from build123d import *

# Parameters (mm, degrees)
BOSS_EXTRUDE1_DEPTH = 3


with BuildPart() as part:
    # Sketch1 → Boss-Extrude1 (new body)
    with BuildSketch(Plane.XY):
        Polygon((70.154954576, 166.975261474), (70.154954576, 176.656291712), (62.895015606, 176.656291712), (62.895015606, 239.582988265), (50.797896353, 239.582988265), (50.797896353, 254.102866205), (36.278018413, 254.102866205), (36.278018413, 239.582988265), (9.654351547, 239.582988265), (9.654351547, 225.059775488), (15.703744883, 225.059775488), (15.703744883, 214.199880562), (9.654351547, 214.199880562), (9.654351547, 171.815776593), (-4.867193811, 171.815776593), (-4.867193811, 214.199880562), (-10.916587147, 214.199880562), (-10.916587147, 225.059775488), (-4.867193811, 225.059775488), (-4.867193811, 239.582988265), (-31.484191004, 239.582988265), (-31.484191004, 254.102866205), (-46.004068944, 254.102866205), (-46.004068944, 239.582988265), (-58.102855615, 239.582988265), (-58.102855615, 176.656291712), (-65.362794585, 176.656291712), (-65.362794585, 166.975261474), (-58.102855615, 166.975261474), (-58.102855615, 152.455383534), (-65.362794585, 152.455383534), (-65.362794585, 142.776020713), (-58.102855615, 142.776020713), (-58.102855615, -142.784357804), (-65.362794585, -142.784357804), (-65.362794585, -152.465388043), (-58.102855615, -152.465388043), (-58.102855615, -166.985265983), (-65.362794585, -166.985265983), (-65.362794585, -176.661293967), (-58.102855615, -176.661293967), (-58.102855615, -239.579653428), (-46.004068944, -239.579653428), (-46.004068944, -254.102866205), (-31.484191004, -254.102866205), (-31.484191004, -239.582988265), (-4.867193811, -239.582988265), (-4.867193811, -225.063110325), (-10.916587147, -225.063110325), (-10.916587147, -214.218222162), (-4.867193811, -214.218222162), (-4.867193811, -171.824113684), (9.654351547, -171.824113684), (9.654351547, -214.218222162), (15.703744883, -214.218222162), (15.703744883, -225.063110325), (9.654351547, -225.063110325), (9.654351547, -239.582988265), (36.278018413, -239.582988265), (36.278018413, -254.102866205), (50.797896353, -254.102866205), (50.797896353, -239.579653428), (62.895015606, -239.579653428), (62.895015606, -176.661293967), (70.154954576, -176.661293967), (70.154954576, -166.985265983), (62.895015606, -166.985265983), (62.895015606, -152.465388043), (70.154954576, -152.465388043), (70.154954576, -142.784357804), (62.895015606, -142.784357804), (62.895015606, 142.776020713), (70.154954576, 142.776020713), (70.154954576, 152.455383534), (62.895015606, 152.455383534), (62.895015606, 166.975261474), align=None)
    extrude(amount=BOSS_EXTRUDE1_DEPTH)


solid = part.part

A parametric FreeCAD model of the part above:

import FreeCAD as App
import Part
import Sketcher
Q = App.Units.Quantity


def add_polygon(sketch, points):
    """Adds a closed chain of lines whose ends are joined by coincident constraints."""
    first, n = sketch.GeometryCount, len(points)
    for a, b in zip(points, points[1:] + points[:1]):
        sketch.addGeometry(Part.LineSegment(App.Vector(*a, 0), App.Vector(*b, 0)), False)
    for i in range(n):
        sketch.addConstraint(Sketcher.Constraint("Coincident", first + i, 2, first + (i + 1) % n, 1))

doc = App.newDocument("Part")
body = doc.addObject("PartDesign::Body", "Body")

# Sketch on XY plane
sketch1 = body.newObject("Sketcher::SketchObject", "Sketch")
sketch1.AttachmentSupport = (doc.getObject("XY_Plane"), [""])
sketch1.MapMode = "FlatFace"
add_polygon(sketch1, [(70.154955, 166.975261), (70.154955, 176.656292), (62.895016, 176.656292), (62.895016, 239.582988), (50.797896, 239.582988), (50.797896, 254.102866), (36.278018, 254.102866), (36.278018, 239.582988), (9.654352, 239.582988), (9.654352, 225.059775), (15.703745, 225.059775), (15.703745, 214.199881), (9.654352, 214.199881), (9.654352, 171.815777), (-4.867194, 171.815777), (-4.867194, 214.199881), (-10.916587, 214.199881), (-10.916587, 225.059775), (-4.867194, 225.059775), (-4.867194, 239.582988), (-31.484191, 239.582988), (-31.484191, 254.102866), (-46.004069, 254.102866), (-46.004069, 239.582988), (-58.102856, 239.582988), (-58.102856, 176.656292), (-65.362795, 176.656292), (-65.362795, 166.975261), (-58.102856, 166.975261), (-58.102856, 152.455384), (-65.362795, 152.455384), (-65.362795, 142.776021), (-58.102856, 142.776021), (-58.102856, -142.784358), (-65.362795, -142.784358), (-65.362795, -152.465388), (-58.102856, -152.465388), (-58.102856, -166.985266), (-65.362795, -166.985266), (-65.362795, -176.661294), (-58.102856, -176.661294), (-58.102856, -239.579653), (-46.004069, -239.579653), (-46.004069, -254.102866), (-31.484191, -254.102866), (-31.484191, -239.582988), (-4.867194, -239.582988), (-4.867194, -225.06311), (-10.916587, -225.06311), (-10.916587, -214.218222), (-4.867194, -214.218222), (-4.867194, -171.824114), (9.654352, -171.824114), (9.654352, -214.218222), (15.703745, -214.218222), (15.703745, -225.06311), (9.654352, -225.06311), (9.654352, -239.582988), (36.278018, -239.582988), (36.278018, -254.102866), (50.797896, -254.102866), (50.797896, -239.579653), (62.895016, -239.579653), (62.895016, -176.661294), (70.154955, -176.661294), (70.154955, -166.985266), (62.895016, -166.985266), (62.895016, -152.465388), (70.154955, -152.465388), (70.154955, -142.784358), (62.895016, -142.784358), (62.895016, 142.776021), (70.154955, 142.776021), (70.154955, 152.455384), (62.895016, 152.455384), (62.895016, 166.975261)])  # lines 0-75
sketch1.addConstraint([
    Sketcher.Constraint("Vertical", 0),
    Sketcher.Constraint("Horizontal", 1),
    Sketcher.Constraint("Vertical", 2),
    Sketcher.Constraint("Horizontal", 3),
    Sketcher.Constraint("Vertical", 4),
    Sketcher.Constraint("Horizontal", 5),
    Sketcher.Constraint("Vertical", 6),
    Sketcher.Constraint("Horizontal", 7),
    Sketcher.Constraint("Vertical", 8),
    Sketcher.Constraint("Horizontal", 9),
    Sketcher.Constraint("Vertical", 10),
    Sketcher.Constraint("Horizontal", 11),
    Sketcher.Constraint("Vertical", 12),
    Sketcher.Constraint("Horizontal", 13),
    Sketcher.Constraint("Vertical", 14),
    Sketcher.Constraint("Horizontal", 15),
    Sketcher.Constraint("Vertical", 16),
    Sketcher.Constraint("Horizontal", 17),
    Sketcher.Constraint("Vertical", 18),
    Sketcher.Constraint("Horizontal", 19),
    Sketcher.Constraint("Vertical", 20),
    Sketcher.Constraint("Horizontal", 21),
    Sketcher.Constraint("Vertical", 22),
    Sketcher.Constraint("Horizontal", 23),
    Sketcher.Constraint("Vertical", 24),
    Sketcher.Constraint("Horizontal", 25),
    Sketcher.Constraint("Vertical", 26),
    Sketcher.Constraint("Horizontal", 27),
    Sketcher.Constraint("Vertical", 28),
    Sketcher.Constraint("Horizontal", 29),
    Sketcher.Constraint("Vertical", 30),
    Sketcher.Constraint("Horizontal", 31),
    Sketcher.Constraint("Vertical", 32),
    Sketcher.Constraint("Horizontal", 33),
    Sketcher.Constraint("Vertical", 34),
    Sketcher.Constraint("Horizontal", 35),
    Sketcher.Constraint("Vertical", 36),
    Sketcher.Constraint("Horizontal", 37),
    Sketcher.Constraint("Vertical", 38),
    Sketcher.Constraint("Horizontal", 39),
    Sketcher.Constraint("Vertical", 40),
    Sketcher.Constraint("Horizontal", 41),
    Sketcher.Constraint("Vertical", 42),
    Sketcher.Constraint("Horizontal", 43),
    Sketcher.Constraint("Vertical", 44),
    Sketcher.Constraint("Horizontal", 45),
    Sketcher.Constraint("Vertical", 46),
    Sketcher.Constraint("Horizontal", 47),
    Sketcher.Constraint("Vertical", 48),
    Sketcher.Constraint("Horizontal", 49),
    Sketcher.Constraint("Vertical", 50),
    Sketcher.Constraint("Horizontal", 51),
    Sketcher.Constraint("Vertical", 52),
    Sketcher.Constraint("Horizontal", 53),
    Sketcher.Constraint("Vertical", 54),
    Sketcher.Constraint("Horizontal", 55),
    Sketcher.Constraint("Vertical", 56),
    Sketcher.Constraint("Horizontal", 57),
    Sketcher.Constraint("Vertical", 58),
    Sketcher.Constraint("Horizontal", 59),
    Sketcher.Constraint("Vertical", 60),
    Sketcher.Constraint("Horizontal", 61),
    Sketcher.Constraint("Vertical", 62),
    Sketcher.Constraint("Horizontal", 63),
    Sketcher.Constraint("Vertical", 64),
    Sketcher.Constraint("Horizontal", 65),
    Sketcher.Constraint("Vertical", 66),
    Sketcher.Constraint("Horizontal", 67),
    Sketcher.Constraint("Vertical", 68),
    Sketcher.Constraint("Horizontal", 69),
    Sketcher.Constraint("Vertical", 70),
    Sketcher.Constraint("Horizontal", 71),
    Sketcher.Constraint("Vertical", 72),
    Sketcher.Constraint("Horizontal", 73),
    Sketcher.Constraint("Vertical", 74),
    Sketcher.Constraint("Horizontal", 75),
    Sketcher.Constraint("Symmetric", 21, 2, 42, 2, -1),
    Sketcher.Constraint("Symmetric", 19, 2, 44, 2, -1),
    Sketcher.Constraint("Symmetric", 7, 2, 56, 2, -1),
    Sketcher.Constraint("Symmetric", 5, 2, 58, 2, -1),
    Sketcher.Constraint("Horizontal", 3, 2, 6, 2),
    Sketcher.Constraint("Horizontal", 11, 2, 14, 2),
    Sketcher.Constraint("Horizontal", 9, 2, 16, 2),
    Sketcher.Constraint("Horizontal", 7, 2, 18, 2),
    Sketcher.Constraint("Horizontal", 5, 2, 20, 2),
    Sketcher.Constraint("Horizontal", 19, 2, 22, 2),
    Sketcher.Constraint("Horizontal", 1, 2, 24, 2),
    Sketcher.Constraint("Horizontal", 49, 2, 52, 2),
    Sketcher.Constraint("Horizontal", 47, 2, 54, 2),
    Sketcher.Constraint("Horizontal", 41, 2, 60, 2),
    Sketcher.Constraint("Horizontal", 39, 2, 62, 2),
    Sketcher.Constraint("Horizontal", 37, 2, 64, 2),
    Sketcher.Constraint("Horizontal", 35, 2, 66, 2),
    Sketcher.Constraint("Horizontal", 33, 2, 68, 2),
    Sketcher.Constraint("Horizontal", 31, 2, 70, 2),
    Sketcher.Constraint("Horizontal", 29, 2, 72, 2),
    Sketcher.Constraint("Horizontal", 27, 2, 74, 2),
    Sketcher.Constraint("Vertical", 8, 2, 11, 2),
    Sketcher.Constraint("Vertical", 14, 2, 17, 2),
    Sketcher.Constraint("Vertical", 24, 2, 27, 2),
    Sketcher.Constraint("Vertical", 26, 2, 29, 2),
    Sketcher.Constraint("Vertical", 28, 2, 31, 2),
    Sketcher.Constraint("Vertical", 30, 2, 33, 2),
    Sketcher.Constraint("Vertical", 32, 2, 35, 2),
    Sketcher.Constraint("Vertical", 34, 2, 37, 2),
    Sketcher.Constraint("Vertical", 36, 2, 39, 2),
    Sketcher.Constraint("Vertical", 18, 2, 45, 2),
    Sketcher.Constraint("Vertical", 16, 2, 47, 2),
    Sketcher.Constraint("Vertical", 46, 2, 49, 2),
    Sketcher.Constraint("Vertical", 12, 2, 51, 2),
    Sketcher.Constraint("Vertical", 10, 2, 53, 2),
    Sketcher.Constraint("Vertical", 4, 2, 59, 2),
    Sketcher.Constraint("Vertical", 2, 2, 61, 2),
    Sketcher.Constraint("Vertical", 0, 2, 63, 2),
    Sketcher.Constraint("Vertical", 62, 2, 65, 2),
    Sketcher.Constraint("Vertical", 64, 2, 67, 2),
    Sketcher.Constraint("Vertical", 66, 2, 69, 2),
    Sketcher.Constraint("Vertical", 68, 2, 71, 2),
    Sketcher.Constraint("Vertical", 70, 2, 73, 2),
    Sketcher.Constraint("Equal", 11, 15),
    Sketcher.Constraint("Equal", 5, 21),
    Sketcher.Constraint("Equal", 1, 25),
    Sketcher.Constraint("Equal", 59, 4),
    Sketcher.Constraint("Equal", 22, 28),
    Sketcher.Constraint("Equal", 26, 34),
    Sketcher.Constraint("Equal", 28, 36),
    Sketcher.Constraint("Equal", 18, 42),
    Sketcher.Constraint("Equal", 44, 46),
    Sketcher.Constraint("DistanceX", 1, 2, 1, 1, Q("7.259939 mm")),
    Sketcher.Constraint("DistanceX", 3, 2, 3, 1, Q("12.097119 mm")),
    Sketcher.Constraint("DistanceY", 0, 1, 0, 2, Q("9.68103 mm")),
    Sketcher.Constraint("DistanceY", 32, 2, 32, 1, Q("285.560379 mm")),
    Sketcher.Constraint("DistanceY", 40, 2, 40, 1, Q("62.918359 mm")),
    Sketcher.Constraint("DistanceY", 48, 1, 48, 2, Q("10.844888 mm")),
    Sketcher.Constraint("DistanceY", 50, 1, 50, 2, Q("42.394108 mm")),
    Sketcher.Constraint("DistanceX", 5, 2, 5, 1, Q("14.519878 mm")),
    Sketcher.Constraint("DistanceX", 7, 2, 7, 1, Q("26.623667 mm")),
    Sketcher.Constraint("DistanceX", 9, 1, 9, 2, Q("6.049393 mm")),
    Sketcher.Constraint("DistanceX", 13, 2, 13, 1, Q("14.521545 mm")),
    Sketcher.Constraint("DistanceX", 19, 2, 19, 1, Q("26.616997 mm")),
    Sketcher.Constraint("DistanceX", 23, 2, 23, 1, Q("12.098787 mm")),
    Sketcher.Constraint("DistanceY", 2, 1, 2, 2, Q("62.926697 mm")),
    Sketcher.Constraint("DistanceY", 8, 2, 8, 1, Q("14.523213 mm")),
    Sketcher.Constraint("DistanceY", 10, 2, 10, 1, Q("10.859895 mm")),
    Sketcher.Constraint("DistanceY", 12, 2, 12, 1, Q("42.384104 mm")),
    Sketcher.Constraint("DistanceY", 30, 2, 30, 1, Q("9.679363 mm")),
    Sketcher.Constraint("DistanceY", 38, 2, 38, 1, Q("9.676028 mm")),
    Sketcher.Constraint("DistanceX", -1, 1, 5, 2, Q("36.278018 mm")),
])
pad1 = body.newObject("PartDesign::Pad", "Pad")
pad1.Profile = sketch1
pad1.Length = 3

doc.recompute()
